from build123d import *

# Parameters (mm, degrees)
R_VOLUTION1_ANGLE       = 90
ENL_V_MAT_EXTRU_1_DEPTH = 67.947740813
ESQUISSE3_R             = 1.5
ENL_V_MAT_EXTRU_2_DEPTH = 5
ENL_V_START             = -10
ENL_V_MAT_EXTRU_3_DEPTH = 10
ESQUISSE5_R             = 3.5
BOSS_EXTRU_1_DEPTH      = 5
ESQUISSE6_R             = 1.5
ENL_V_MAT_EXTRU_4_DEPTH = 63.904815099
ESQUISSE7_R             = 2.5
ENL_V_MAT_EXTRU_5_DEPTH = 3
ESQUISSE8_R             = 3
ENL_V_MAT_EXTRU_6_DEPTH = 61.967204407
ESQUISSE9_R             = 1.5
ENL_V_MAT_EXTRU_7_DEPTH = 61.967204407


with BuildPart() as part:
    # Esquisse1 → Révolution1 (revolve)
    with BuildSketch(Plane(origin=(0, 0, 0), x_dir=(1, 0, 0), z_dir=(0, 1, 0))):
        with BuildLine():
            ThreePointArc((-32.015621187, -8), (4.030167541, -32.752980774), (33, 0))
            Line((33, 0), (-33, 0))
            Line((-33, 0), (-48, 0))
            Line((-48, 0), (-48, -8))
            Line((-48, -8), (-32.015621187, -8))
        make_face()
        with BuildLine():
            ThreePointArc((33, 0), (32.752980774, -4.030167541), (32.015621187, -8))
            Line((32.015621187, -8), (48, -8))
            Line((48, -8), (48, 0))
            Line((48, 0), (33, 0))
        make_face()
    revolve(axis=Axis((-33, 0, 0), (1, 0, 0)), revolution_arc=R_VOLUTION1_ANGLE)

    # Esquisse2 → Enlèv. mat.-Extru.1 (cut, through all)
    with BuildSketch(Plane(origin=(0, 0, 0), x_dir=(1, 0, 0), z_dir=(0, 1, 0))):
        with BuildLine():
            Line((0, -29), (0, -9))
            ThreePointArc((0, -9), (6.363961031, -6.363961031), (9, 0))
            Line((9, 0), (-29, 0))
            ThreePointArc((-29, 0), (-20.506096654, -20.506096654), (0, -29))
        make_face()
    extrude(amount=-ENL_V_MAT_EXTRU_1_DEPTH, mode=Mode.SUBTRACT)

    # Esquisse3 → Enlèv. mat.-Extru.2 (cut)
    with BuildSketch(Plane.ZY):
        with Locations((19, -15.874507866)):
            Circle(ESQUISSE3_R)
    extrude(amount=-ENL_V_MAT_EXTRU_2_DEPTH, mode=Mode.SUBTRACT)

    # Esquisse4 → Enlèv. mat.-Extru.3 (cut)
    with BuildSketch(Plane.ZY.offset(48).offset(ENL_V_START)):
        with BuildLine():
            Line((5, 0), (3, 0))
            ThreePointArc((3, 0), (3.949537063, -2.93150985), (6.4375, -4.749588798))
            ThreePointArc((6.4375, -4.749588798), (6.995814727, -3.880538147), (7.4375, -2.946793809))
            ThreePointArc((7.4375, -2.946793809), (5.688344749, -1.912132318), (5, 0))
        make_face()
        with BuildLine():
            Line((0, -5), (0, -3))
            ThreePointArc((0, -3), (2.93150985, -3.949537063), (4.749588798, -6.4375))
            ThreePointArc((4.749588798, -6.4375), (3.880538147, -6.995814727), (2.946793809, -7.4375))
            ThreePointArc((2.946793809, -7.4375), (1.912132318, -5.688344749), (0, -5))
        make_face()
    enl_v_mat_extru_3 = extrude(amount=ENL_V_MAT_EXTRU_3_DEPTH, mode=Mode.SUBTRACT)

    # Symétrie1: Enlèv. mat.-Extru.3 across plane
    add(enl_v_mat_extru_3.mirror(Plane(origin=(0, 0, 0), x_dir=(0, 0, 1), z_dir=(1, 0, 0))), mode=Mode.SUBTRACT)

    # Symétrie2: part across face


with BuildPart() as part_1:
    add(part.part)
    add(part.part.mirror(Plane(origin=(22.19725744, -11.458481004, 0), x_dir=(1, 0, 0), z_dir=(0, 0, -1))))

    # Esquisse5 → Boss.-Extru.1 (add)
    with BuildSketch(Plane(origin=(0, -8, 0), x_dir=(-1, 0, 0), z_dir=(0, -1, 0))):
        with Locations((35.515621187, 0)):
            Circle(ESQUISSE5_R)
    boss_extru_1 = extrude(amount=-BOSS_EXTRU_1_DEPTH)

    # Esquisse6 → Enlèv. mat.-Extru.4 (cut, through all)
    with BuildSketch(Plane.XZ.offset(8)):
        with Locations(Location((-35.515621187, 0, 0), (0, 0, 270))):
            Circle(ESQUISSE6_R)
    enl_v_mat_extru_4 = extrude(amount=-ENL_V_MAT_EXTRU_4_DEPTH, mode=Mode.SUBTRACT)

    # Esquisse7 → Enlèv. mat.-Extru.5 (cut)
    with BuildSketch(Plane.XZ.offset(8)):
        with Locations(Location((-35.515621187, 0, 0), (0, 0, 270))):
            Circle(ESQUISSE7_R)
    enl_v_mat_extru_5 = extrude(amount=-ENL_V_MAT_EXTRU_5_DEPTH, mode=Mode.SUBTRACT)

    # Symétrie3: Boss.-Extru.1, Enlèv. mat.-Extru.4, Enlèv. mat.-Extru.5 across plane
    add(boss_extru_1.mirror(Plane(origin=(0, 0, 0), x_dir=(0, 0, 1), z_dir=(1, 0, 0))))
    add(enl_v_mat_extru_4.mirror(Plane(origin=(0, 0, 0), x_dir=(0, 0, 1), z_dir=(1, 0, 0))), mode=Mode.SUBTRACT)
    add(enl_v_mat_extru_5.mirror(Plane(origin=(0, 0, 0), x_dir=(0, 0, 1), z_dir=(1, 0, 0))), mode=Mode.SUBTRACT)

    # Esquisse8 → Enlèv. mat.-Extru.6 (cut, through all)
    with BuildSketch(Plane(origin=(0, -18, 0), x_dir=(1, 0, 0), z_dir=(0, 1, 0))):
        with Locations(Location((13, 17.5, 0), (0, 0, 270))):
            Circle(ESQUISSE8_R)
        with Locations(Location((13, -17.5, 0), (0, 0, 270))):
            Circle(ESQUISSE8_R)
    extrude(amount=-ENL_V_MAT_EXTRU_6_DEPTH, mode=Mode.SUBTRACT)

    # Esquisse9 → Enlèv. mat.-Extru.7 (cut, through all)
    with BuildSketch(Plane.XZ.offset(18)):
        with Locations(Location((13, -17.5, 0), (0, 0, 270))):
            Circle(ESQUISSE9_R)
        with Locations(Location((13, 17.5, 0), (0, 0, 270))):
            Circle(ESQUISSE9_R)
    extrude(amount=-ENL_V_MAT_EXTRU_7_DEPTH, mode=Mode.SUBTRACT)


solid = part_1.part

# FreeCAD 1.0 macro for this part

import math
import FreeCAD as App
import Part
import Sketcher

V = App.Vector
Q = App.Units.Quantity

doc = App.newDocument("Part")
body = doc.addObject("PartDesign::Body", "Body")

# Sketch on XZ plane
sketch1 = body.newObject("Sketcher::SketchObject", "Sketch")
sketch1.AttachmentSupport = (doc.getObject("XZ_Plane"), [""])
sketch1.MapMode = "FlatFace"
sketch1.addGeometry([
    Part.ArcOfCircle(Part.Circle(V(0, 0, 0), V(0, 0, 1), 33), math.radians(14.029665), math.radians(165.970335)),  # 0
    Part.LineSegment(V(32.015621, 8, 0), V(48, 8, 0)),  # 1
    Part.LineSegment(V(48, 8, 0), V(48, 0, 0)),  # 2
    Part.LineSegment(V(48, 0, 0), V(-48, 0, 0)),  # 3
    Part.LineSegment(V(-48, 0, 0), V(-48, 8, 0)),  # 4
    Part.LineSegment(V(-48, 8, 0), V(-32.015621, 8, 0)),  # 5
], False)
sketch1.addConstraint([
    Sketcher.Constraint("Coincident", 0, 1, 1, 1),
    Sketcher.Constraint("Coincident", 1, 2, 2, 1),
    Sketcher.Constraint("Coincident", 2, 2, 3, 1),
    Sketcher.Constraint("Coincident", 3, 2, 4, 1),
    Sketcher.Constraint("Coincident", 4, 2, 5, 1),
    Sketcher.Constraint("Coincident", 5, 2, 0, 2),
    Sketcher.Constraint("Horizontal", 1),
    Sketcher.Constraint("Vertical", 2),
    Sketcher.Constraint("Horizontal", 3),
    Sketcher.Constraint("Vertical", 4),
    Sketcher.Constraint("Horizontal", 5),
    Sketcher.Constraint("Coincident", 0, 3, -1, 1),
    Sketcher.Constraint("Symmetric", 2, 2, 3, 2, -1, 1),
    Sketcher.Constraint("Horizontal", 1, 2, 4, 2),
    Sketcher.Constraint("Radius", 0, Q("33 mm")),
    Sketcher.Constraint("DistanceX", 3, 2, 3, 1, Q("96 mm")),
    Sketcher.Constraint("DistanceY", 2, 2, 2, 1, Q("8 mm")),
])
revolution = body.newObject("PartDesign::Revolution", "Revolution")
revolution.Profile = sketch1
revolution.ReferenceAxis = (sketch1, ["H_Axis"])
revolution.Angle = 90

# Sketch on XZ plane
sketch2 = body.newObject("Sketcher::SketchObject", "Sketch001")
sketch2.AttachmentSupport = (doc.getObject("XZ_Plane"), [""])
sketch2.MapMode = "FlatFace"
sketch2.addGeometry([
    Part.LineSegment(V(0, 29, 0), V(0, 9, 0)),
    Part.ArcOfCircle(Part.Circle(V(0, 0, 0), V(0, 0, 1), 9), math.radians(0), math.radians(90)),
    Part.LineSegment(V(9, 0, 0), V(-29, 0, 0)),
    Part.ArcOfCircle(Part.Circle(V(0, 0, 0), V(0, 0, 1), 29), math.radians(90), math.radians(180)),
], False)
sketch2.addConstraint([
    Sketcher.Constraint("Coincident", 0, 2, 1, 2),
    Sketcher.Constraint("Coincident", 1, 1, 2, 1),
    Sketcher.Constraint("Coincident", 2, 2, 3, 2),
    Sketcher.Constraint("Coincident", 3, 1, 0, 1),
    Sketcher.Constraint("Vertical", 0),
    Sketcher.Constraint("Horizontal", 2),
    Sketcher.Constraint("Coincident", 1, 3, -1, 1),
    Sketcher.Constraint("Coincident", 3, 3, -1, 1),
    Sketcher.Constraint("PointOnObject", 0, 2, -2),
    Sketcher.Constraint("PointOnObject", 1, 1, -1),
    Sketcher.Constraint("Radius", 1, Q("9 mm")),
    Sketcher.Constraint("Radius", 3, Q("29 mm")),
])
pocket1 = body.newObject("PartDesign::Pocket", "Pocket")
pocket1.Profile = sketch2
pocket1.Type = "ThroughAll"
pocket1.Reversed = True

# Sketch on YZ plane
sketch3 = body.newObject("Sketcher::SketchObject", "Sketch002")
sketch3.AttachmentSupport = (doc.getObject("YZ_Plane"), [""])
sketch3.MapMode = "FlatFace"
sketch3.addGeometry(Part.Circle(V(-15.874508, 19, 0), V(0, 0, 1), 1.5), False)
sketch3.addConstraint([
    Sketcher.Constraint("Diameter", 0, Q("3 mm")),
    Sketcher.Constraint("DistanceY", -1, 1, 0, 3, Q("19 mm")),
    Sketcher.Constraint("DistanceX", 0, 3, -1, 1, Q("15.874508 mm")),
])
pocket2 = body.newObject("PartDesign::Pocket", "Pocket001")
pocket2.Profile = sketch3
pocket2.Length = 5
pocket2.Reversed = True

# Sketch on YZ plane
sketch4 = body.newObject("Sketcher::SketchObject", "Sketch003")
sketch4.AttachmentSupport = (doc.getObject("YZ_Plane"), [""])
sketch4.MapMode = "FlatFace"
sketch4.AttachmentOffset = App.Placement(V(0, 0, -38), App.Rotation())
sketch4.addGeometry([
    Part.LineSegment(V(0, 5, 0), V(0, 3, 0)),  # 0
    Part.ArcOfCircle(Part.Circle(V(0, 8, 0), V(0, 0, 1), 5), math.radians(-161.790043), math.radians(-90)),  # 1
    Part.ArcOfCircle(Part.Circle(V(0, 0, 0), V(0, 0, 1), 8), math.radians(111.613846), math.radians(126.419914)),  # 2
    Part.ArcOfCircle(Part.Circle(V(0, 8, 0), V(0, 0, 1), 3), math.radians(-169.193077), math.radians(-90)),  # 3
    Part.LineSegment(V(-3, 0, 0), V(-5, 0, 0)),  # 4
    Part.ArcOfCircle(Part.Circle(V(-8, 0, 0), V(0, 0, 1), 3), math.radians(0), math.radians(79.193077)),  # 5
    Part.ArcOfCircle(Part.Circle(V(0, 0, 0), V(0, 0, 1), 8), math.radians(143.580086), math.radians(158.386154)),  # 6
    Part.ArcOfCircle(Part.Circle(V(-8, 0, 0), V(0, 0, 1), 5), math.radians(0), math.radians(71.790043)),  # 7
], False)
sketch4.addConstraint([
    Sketcher.Constraint("Coincident", 0, 2, 1, 2),
    Sketcher.Constraint("Coincident", 1, 1, 2, 2),
    Sketcher.Constraint("Coincident", 2, 1, 3, 1),
    Sketcher.Constraint("Coincident", 3, 2, 0, 1),
    Sketcher.Constraint("Coincident", 4, 2, 5, 1),
    Sketcher.Constraint("Coincident", 5, 2, 6, 2),
    Sketcher.Constraint("Coincident", 6, 1, 7, 2),
    Sketcher.Constraint("Coincident", 7, 1, 4, 1),
    Sketcher.Constraint("Vertical", 0),
    Sketcher.Constraint("Horizontal", 4),
    Sketcher.Constraint("Coincident", 2, 3, -1, 1),
    Sketcher.Constraint("Coincident", 6, 3, -1, 1),
    Sketcher.Constraint("Coincident", 3, 3, 1, 3),
    Sketcher.Constraint("Coincident", 7, 3, 5, 3),
    Sketcher.Constraint("Equal", 3, 5),
    Sketcher.Constraint("Equal", 2, 6),
    Sketcher.Constraint("Equal", 1, 7),
    Sketcher.Constraint("PointOnObject", 1, 3, -2),
    Sketcher.Constraint("PointOnObject", 5, 3, -1),
    Sketcher.Constraint("PointOnObject", 0, 2, -2),
    Sketcher.Constraint("PointOnObject", 4, 2, -1),
    Sketcher.Constraint("Radius", 1, Q("5 mm")),
    Sketcher.Constraint("Radius", 2, Q("8 mm")),
    Sketcher.Constraint("Radius", 3, Q("3 mm")),
    Sketcher.Constraint("DistanceY", -1, 1, 1, 3, Q("8 mm")),
    Sketcher.Constraint("DistanceX", 5, 3, -1, 1, Q("8 mm")),
])
pocket3 = body.newObject("PartDesign::Pocket", "Pocket002")
pocket3.Profile = sketch4
pocket3.Length = 10
doc.recompute()

mirrored = body.newObject("PartDesign::Mirrored", "Mirrored")
mirrored.Originals = [pocket3]
mirrored.MirrorPlane = (doc.getObject("YZ_Plane"), [""])
body.Tip = mirrored
body2 = doc.addObject("PartDesign::Body", "Body001")
doc.recompute()

body2.BaseFeature = body
doc.recompute()

mirroring = doc.addObject("Part::Mirroring", "Mirroring")
mirroring.Source = body
mirroring.Base = V(22.197257, -11.458481, 0)
mirroring.Normal = V(0, 0, -1)
body3 = doc.addObject("PartDesign::Body", "Body002")
body3.BaseFeature = mirroring
boolean = body2.newObject("PartDesign::Boolean", "Boolean")
boolean.Type = "Fuse"
boolean.addObjects([body3])
doc.recompute()

# Sketch on XZ plane
sketch5 = body2.newObject("Sketcher::SketchObject", "Sketch004")
sketch5.AttachmentSupport = (doc.getObject("XZ_Plane001"), [""])
sketch5.MapMode = "FlatFace"
sketch5.AttachmentOffset = App.Placement(V(0, 0, 8), App.Rotation())
sketch5.addGeometry(Part.Circle(V(-35.515621, 0, 0), V(0, 0, 1), 3.5), False)
sketch5.addConstraint([
    Sketcher.Constraint("PointOnObject", 0, 3, -1),
    Sketcher.Constraint("Diameter", 0, Q("7 mm")),
    Sketcher.Constraint("DistanceX", 0, 3, -1, 1, Q("35.515621 mm")),
])
pad1 = body2.newObject("PartDesign::Pad", "Pad")
pad1.Profile = sketch5
pad1.Length = 5
pad1.Reversed = True

# Sketch on XZ plane
sketch6 = body2.newObject("Sketcher::SketchObject", "Sketch005")
sketch6.AttachmentSupport = (doc.getObject("XZ_Plane001"), [""])
sketch6.MapMode = "FlatFace"
sketch6.AttachmentOffset = App.Placement(V(0, 0, 8), App.Rotation())
sketch6.addGeometry(Part.Circle(V(-35.515621, 0, 0), V(0, 0, 1), 1.5), False)
sketch6.addConstraint([
    Sketcher.Constraint("PointOnObject", 0, 3, -1),
    Sketcher.Constraint("Diameter", 0, Q("3 mm")),
    Sketcher.Constraint("DistanceX", 0, 3, -1, 1, Q("35.515621 mm")),
])
pocket4 = body2.newObject("PartDesign::Pocket", "Pocket003")
pocket4.Profile = sketch6
pocket4.Type = "ThroughAll"

# Sketch on XZ plane
sketch7 = body2.newObject("Sketcher::SketchObject", "Sketch006")
sketch7.AttachmentSupport = (doc.getObject("XZ_Plane001"), [""])
sketch7.MapMode = "FlatFace"
sketch7.AttachmentOffset = App.Placement(V(0, 0, 8), App.Rotation())
sketch7.addGeometry(Part.Circle(V(-35.515621, 0, 0), V(0, 0, 1), 2.5), False)
sketch7.addConstraint([
    Sketcher.Constraint("PointOnObject", 0, 3, -1),
    Sketcher.Constraint("Diameter", 0, Q("5 mm")),
    Sketcher.Constraint("DistanceX", 0, 3, -1, 1, Q("35.515621 mm")),
])
pocket5 = body2.newObject("PartDesign::Pocket", "Pocket004")
pocket5.Profile = sketch7
pocket5.Length = 3
doc.recompute()

mirrored2 = body2.newObject("PartDesign::Mirrored", "Mirrored001")
mirrored2.Originals = [pad1, pocket4, pocket5]
mirrored2.MirrorPlane = (doc.getObject("YZ_Plane001"), [""])
body2.Tip = mirrored2

# Sketch on XZ plane
sketch8 = body2.newObject("Sketcher::SketchObject", "Sketch007")
sketch8.AttachmentSupport = (doc.getObject("XZ_Plane001"), [""])
sketch8.MapMode = "FlatFace"
sketch8.AttachmentOffset = App.Placement(V(0, 0, 18), App.Rotation())
sketch8.addGeometry([
    Part.Circle(V(13, -17.5, 0), V(0, 0, 1), 3),
    Part.Circle(V(13, 17.5, 0), V(0, 0, 1), 3),
], False)
sketch8.addConstraint([
    Sketcher.Constraint("Equal", 0, 1),
    Sketcher.Constraint("Symmetric", 0, 3, 1, 3, -1),
    Sketcher.Constraint("Diameter", 0, Q("6 mm")),
    Sketcher.Constraint("DistanceX", -1, 1, 0, 3, Q("13 mm")),
    Sketcher.Constraint("DistanceY", 0, 3, 1, 3, Q("35 mm")),
])
pocket6 = body2.newObject("PartDesign::Pocket", "Pocket005")
pocket6.Profile = sketch8
pocket6.Type = "ThroughAll"
pocket6.Reversed = True

# Sketch on XZ plane
sketch9 = body2.newObject("Sketcher::SketchObject", "Sketch008")
sketch9.AttachmentSupport = (doc.getObject("XZ_Plane001"), [""])
sketch9.MapMode = "FlatFace"
sketch9.AttachmentOffset = App.Placement(V(0, 0, 18), App.Rotation())
sketch9.addGeometry([
    Part.Circle(V(13, -17.5, 0), V(0, 0, 1), 1.5),
    Part.Circle(V(13, 17.5, 0), V(0, 0, 1), 1.5),
], False)
sketch9.addConstraint([
    Sketcher.Constraint("Equal", 0, 1),
    Sketcher.Constraint("Symmetric", 0, 3, 1, 3, -1),
    Sketcher.Constraint("Diameter", 0, Q("3 mm")),
    Sketcher.Constraint("DistanceX", -1, 1, 0, 3, Q("13 mm")),
    Sketcher.Constraint("DistanceY", 0, 3, 1, 3, Q("35 mm")),
])
pocket7 = body2.newObject("PartDesign::Pocket", "Pocket006")
pocket7.Profile = sketch9
pocket7.Type = "ThroughAll"
mirroring.Visibility = False

doc.recompute()
